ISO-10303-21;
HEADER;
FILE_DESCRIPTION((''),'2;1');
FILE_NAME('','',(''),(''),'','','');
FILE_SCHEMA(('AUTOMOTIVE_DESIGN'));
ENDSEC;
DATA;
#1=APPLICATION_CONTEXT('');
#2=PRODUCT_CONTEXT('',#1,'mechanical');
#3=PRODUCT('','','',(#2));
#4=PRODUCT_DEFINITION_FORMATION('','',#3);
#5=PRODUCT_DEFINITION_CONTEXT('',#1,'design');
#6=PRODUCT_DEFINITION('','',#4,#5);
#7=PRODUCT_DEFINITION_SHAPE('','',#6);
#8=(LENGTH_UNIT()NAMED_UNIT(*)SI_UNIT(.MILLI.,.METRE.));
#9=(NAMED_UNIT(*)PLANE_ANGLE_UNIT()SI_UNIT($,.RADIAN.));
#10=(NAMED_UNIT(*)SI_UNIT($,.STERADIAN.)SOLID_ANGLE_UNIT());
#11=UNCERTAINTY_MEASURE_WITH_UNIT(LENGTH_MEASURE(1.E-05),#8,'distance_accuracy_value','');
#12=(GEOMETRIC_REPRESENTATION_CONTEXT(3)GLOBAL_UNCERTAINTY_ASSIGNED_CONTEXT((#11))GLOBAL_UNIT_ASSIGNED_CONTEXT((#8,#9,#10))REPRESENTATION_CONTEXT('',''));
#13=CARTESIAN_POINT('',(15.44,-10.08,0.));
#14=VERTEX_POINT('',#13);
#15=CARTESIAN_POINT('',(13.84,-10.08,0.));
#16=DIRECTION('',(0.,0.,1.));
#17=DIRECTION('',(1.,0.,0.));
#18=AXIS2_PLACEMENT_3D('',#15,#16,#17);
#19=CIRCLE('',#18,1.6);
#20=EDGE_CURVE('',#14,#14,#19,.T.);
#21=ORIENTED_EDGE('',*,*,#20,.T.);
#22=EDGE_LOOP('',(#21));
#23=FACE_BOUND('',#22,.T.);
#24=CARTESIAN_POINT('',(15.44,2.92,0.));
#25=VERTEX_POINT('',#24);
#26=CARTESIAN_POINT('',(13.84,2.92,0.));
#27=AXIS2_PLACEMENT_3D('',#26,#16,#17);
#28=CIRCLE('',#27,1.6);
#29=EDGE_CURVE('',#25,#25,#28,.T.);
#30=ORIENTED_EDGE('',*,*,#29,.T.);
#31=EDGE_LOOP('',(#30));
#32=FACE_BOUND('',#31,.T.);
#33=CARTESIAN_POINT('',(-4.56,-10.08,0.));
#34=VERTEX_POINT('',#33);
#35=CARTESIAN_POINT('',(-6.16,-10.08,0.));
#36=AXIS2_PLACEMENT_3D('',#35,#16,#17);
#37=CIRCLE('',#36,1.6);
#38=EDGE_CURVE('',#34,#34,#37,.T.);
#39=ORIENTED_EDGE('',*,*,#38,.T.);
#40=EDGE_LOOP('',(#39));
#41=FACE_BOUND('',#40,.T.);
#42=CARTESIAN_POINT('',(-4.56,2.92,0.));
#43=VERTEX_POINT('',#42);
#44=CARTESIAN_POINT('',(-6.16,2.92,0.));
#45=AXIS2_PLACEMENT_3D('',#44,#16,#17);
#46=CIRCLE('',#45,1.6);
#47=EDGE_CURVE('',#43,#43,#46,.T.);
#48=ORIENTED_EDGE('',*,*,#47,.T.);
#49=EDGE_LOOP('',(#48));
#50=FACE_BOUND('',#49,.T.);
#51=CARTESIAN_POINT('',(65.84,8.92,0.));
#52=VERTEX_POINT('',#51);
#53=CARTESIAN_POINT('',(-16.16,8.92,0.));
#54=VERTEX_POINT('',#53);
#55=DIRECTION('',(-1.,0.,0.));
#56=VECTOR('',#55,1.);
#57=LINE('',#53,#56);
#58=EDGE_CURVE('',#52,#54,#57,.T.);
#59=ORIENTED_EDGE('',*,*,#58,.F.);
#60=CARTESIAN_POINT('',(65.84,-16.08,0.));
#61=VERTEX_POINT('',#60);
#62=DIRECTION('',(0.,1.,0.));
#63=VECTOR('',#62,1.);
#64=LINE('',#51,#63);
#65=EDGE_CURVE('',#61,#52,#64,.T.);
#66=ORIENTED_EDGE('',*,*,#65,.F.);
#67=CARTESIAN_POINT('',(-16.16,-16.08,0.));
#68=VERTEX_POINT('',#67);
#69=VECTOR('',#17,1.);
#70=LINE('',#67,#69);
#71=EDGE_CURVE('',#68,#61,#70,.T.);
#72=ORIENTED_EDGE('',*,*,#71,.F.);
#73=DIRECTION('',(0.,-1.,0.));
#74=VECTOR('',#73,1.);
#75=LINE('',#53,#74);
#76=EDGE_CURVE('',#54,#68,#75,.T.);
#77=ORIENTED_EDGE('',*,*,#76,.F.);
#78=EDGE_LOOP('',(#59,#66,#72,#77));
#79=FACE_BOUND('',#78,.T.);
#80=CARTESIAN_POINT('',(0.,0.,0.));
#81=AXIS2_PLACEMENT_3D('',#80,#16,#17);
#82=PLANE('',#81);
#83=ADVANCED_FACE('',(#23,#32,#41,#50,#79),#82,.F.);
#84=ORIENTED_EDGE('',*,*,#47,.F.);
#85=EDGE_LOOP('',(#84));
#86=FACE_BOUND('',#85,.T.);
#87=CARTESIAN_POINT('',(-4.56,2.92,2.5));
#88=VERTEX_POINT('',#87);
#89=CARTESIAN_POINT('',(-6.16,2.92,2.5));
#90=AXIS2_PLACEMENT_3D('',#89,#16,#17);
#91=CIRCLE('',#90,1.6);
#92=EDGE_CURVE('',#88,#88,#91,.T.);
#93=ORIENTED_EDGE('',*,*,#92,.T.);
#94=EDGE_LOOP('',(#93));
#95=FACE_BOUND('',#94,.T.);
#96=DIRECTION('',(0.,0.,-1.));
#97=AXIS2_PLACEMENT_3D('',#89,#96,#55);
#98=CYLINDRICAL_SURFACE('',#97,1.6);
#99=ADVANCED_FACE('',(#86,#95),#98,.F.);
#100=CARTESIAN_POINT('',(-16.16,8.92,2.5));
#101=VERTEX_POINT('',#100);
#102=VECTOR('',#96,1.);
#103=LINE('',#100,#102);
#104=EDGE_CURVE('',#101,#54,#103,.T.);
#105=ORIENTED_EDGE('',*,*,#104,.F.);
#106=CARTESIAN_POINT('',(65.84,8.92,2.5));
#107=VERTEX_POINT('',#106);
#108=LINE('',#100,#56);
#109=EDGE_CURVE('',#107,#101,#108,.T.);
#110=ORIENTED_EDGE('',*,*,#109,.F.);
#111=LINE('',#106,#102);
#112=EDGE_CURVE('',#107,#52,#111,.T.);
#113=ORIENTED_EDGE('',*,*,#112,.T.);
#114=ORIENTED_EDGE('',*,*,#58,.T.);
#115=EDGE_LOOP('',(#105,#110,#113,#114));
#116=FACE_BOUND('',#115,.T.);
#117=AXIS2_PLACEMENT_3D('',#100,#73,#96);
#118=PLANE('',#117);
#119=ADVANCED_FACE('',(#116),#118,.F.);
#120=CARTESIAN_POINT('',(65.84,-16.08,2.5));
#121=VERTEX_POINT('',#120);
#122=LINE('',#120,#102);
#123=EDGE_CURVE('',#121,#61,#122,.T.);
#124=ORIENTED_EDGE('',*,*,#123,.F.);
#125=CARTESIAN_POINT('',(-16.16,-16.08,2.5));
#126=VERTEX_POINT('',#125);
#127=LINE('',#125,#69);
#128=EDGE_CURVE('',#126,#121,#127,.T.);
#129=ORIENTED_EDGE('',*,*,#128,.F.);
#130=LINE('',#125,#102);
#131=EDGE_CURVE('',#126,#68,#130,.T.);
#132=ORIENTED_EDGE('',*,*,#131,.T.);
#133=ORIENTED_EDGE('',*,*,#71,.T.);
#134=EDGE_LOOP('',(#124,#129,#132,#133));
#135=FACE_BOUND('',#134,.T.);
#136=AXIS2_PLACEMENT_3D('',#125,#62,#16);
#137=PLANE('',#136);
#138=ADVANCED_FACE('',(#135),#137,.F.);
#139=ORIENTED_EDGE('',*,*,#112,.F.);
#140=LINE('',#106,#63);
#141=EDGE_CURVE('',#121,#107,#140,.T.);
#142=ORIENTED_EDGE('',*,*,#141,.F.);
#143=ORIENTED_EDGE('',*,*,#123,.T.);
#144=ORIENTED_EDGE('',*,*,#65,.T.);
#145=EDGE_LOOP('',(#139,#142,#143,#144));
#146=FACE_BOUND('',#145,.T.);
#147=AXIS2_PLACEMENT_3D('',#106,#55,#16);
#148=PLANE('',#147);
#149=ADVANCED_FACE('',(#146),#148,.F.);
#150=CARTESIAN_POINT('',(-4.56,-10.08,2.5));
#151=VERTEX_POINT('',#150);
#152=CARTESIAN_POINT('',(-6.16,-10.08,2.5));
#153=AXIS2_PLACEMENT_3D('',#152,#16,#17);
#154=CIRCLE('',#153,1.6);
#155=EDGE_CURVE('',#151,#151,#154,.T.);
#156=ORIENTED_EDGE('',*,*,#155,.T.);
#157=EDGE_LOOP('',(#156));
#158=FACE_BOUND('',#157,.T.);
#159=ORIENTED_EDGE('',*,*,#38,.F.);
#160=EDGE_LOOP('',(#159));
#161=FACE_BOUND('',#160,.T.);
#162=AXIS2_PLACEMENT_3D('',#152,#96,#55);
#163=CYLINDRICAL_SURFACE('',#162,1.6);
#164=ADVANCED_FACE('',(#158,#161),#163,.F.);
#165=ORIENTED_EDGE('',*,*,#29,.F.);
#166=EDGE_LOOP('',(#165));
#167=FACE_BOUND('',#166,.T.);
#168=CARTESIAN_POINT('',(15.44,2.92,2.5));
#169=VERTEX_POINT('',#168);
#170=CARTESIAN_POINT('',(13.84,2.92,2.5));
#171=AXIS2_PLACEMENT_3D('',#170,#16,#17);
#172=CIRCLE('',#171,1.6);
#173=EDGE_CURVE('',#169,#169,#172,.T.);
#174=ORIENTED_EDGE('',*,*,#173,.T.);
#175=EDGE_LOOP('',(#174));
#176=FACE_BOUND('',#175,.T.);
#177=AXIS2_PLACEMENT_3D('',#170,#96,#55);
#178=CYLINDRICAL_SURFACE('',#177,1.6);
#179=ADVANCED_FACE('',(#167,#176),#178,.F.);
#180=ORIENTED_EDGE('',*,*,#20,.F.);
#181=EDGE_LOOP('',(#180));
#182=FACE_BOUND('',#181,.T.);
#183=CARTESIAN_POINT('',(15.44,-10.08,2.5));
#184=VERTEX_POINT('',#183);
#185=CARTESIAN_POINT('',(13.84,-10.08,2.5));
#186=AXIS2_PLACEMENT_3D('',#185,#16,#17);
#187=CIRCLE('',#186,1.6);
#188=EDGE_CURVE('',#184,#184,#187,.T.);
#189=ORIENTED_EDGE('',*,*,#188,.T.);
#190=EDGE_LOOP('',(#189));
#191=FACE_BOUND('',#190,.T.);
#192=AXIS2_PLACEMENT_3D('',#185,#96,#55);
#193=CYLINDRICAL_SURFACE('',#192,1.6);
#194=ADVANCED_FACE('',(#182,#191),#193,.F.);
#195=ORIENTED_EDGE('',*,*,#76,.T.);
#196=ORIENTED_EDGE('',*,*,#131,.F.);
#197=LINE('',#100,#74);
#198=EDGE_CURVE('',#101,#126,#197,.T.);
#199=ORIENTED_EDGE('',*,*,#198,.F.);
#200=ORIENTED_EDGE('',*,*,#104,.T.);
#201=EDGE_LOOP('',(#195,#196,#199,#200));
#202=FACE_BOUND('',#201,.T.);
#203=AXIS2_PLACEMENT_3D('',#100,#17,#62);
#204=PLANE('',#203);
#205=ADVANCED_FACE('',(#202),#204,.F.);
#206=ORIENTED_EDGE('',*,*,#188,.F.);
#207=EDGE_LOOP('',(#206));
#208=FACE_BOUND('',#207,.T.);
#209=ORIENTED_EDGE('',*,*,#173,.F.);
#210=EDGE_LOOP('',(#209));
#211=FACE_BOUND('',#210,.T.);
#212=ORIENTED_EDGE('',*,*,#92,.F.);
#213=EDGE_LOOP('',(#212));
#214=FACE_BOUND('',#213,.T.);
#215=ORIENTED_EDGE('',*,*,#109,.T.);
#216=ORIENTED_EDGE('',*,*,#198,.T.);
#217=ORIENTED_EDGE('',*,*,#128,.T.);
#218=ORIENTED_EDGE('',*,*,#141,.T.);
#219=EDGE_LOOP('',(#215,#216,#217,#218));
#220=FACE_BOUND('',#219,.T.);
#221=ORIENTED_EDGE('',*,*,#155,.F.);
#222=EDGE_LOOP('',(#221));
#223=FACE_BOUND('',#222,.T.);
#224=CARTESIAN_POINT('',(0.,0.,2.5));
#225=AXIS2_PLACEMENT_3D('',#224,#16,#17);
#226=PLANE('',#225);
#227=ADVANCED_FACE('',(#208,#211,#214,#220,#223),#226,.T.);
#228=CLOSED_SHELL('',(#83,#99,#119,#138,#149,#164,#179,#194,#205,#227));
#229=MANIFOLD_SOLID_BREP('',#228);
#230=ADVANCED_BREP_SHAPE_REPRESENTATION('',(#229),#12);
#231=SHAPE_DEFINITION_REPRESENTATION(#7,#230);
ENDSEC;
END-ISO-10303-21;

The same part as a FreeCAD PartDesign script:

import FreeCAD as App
import Part
import Sketcher
from FreeCAD import Vector
Q = App.Units.Quantity


def add_polygon(sketch, points):
    """Adds a closed chain of lines whose ends are joined by coincident constraints."""
    first, n = sketch.GeometryCount, len(points)
    for a, b in zip(points, points[1:] + points[:1]):
        sketch.addGeometry(Part.LineSegment(App.Vector(*a, 0), App.Vector(*b, 0)), False)
    for i in range(n):
        sketch.addConstraint(Sketcher.Constraint("Coincident", first + i, 2, first + (i + 1) % n, 1))

doc = App.newDocument("Part")
body = doc.addObject("PartDesign::Body", "Body")

# Sketch on XY plane
sketch1 = body.newObject("Sketcher::SketchObject", "Sketch")
sketch1.AttachmentSupport = (doc.getObject("XY_Plane"), [""])
sketch1.MapMode = "FlatFace"
add_polygon(sketch1, [(-16.16, 8.92), (-16.16, -16.08), (65.84, -16.08), (65.84, 8.92)])  # lines 0-3
sketch1.addGeometry(Part.Circle(Vector(-6.16, -10.08, 0), Vector(0, 0, 1), 1.6), False)  # 4
sketch1.addGeometry(Part.Circle(Vector(13.84, -10.08, 0), Vector(0, 0, 1), 1.6), False)  # 5
sketch1.addGeometry(Part.Circle(Vector(-6.16, 2.92, 0), Vector(0, 0, 1), 1.6), False)  # 6
sketch1.addGeometry(Part.Circle(Vector(13.84, 2.92, 0), Vector(0, 0, 1), 1.6), False)  # 7
sketch1.addConstraint([
    Sketcher.Constraint("Vertical", 0),
    Sketcher.Constraint("Horizontal", 1),
    Sketcher.Constraint("Vertical", 2),
    Sketcher.Constraint("Horizontal", 3),
    Sketcher.Constraint("Equal", 4, 5),
    Sketcher.Constraint("Equal", 5, 6),
    Sketcher.Constraint("Equal", 6, 7),
    Sketcher.Constraint("Horizontal", 4, 3, 5, 3),
    Sketcher.Constraint("Horizontal", 6, 3, 7, 3),
    Sketcher.Constraint("Vertical", 4, 3, 6, 3),
    Sketcher.Constraint("Vertical", 5, 3, 7, 3),
    Sketcher.Constraint("Diameter", 4, Q("3.2 mm")),
    Sketcher.Constraint("DistanceX", 1, 1, 1, 2, Q("82 mm")),
    Sketcher.Constraint("DistanceY", 0, 2, 0, 1, Q("25 mm")),
    Sketcher.Constraint("DistanceX", 4, 3, 5, 3, Q("20 mm")),
    Sketcher.Constraint("DistanceY", 4, 3, 6, 3, Q("13 mm")),
    Sketcher.Constraint("DistanceX", 0, 2, 4, 3, Q("10 mm")),
    Sketcher.Constraint("DistanceY", 0, 2, 4, 3, Q("6 mm")),
    Sketcher.Constraint("DistanceX", 4, 3, -1, 1, Q("6.16 mm")),
    Sketcher.Constraint("DistanceY", 4, 3, -1, 1, Q("10.08 mm")),
])
pad1 = body.newObject("PartDesign::Pad", "Pad")
pad1.Profile = sketch1
pad1.Length = 2.5

doc.recompute()
